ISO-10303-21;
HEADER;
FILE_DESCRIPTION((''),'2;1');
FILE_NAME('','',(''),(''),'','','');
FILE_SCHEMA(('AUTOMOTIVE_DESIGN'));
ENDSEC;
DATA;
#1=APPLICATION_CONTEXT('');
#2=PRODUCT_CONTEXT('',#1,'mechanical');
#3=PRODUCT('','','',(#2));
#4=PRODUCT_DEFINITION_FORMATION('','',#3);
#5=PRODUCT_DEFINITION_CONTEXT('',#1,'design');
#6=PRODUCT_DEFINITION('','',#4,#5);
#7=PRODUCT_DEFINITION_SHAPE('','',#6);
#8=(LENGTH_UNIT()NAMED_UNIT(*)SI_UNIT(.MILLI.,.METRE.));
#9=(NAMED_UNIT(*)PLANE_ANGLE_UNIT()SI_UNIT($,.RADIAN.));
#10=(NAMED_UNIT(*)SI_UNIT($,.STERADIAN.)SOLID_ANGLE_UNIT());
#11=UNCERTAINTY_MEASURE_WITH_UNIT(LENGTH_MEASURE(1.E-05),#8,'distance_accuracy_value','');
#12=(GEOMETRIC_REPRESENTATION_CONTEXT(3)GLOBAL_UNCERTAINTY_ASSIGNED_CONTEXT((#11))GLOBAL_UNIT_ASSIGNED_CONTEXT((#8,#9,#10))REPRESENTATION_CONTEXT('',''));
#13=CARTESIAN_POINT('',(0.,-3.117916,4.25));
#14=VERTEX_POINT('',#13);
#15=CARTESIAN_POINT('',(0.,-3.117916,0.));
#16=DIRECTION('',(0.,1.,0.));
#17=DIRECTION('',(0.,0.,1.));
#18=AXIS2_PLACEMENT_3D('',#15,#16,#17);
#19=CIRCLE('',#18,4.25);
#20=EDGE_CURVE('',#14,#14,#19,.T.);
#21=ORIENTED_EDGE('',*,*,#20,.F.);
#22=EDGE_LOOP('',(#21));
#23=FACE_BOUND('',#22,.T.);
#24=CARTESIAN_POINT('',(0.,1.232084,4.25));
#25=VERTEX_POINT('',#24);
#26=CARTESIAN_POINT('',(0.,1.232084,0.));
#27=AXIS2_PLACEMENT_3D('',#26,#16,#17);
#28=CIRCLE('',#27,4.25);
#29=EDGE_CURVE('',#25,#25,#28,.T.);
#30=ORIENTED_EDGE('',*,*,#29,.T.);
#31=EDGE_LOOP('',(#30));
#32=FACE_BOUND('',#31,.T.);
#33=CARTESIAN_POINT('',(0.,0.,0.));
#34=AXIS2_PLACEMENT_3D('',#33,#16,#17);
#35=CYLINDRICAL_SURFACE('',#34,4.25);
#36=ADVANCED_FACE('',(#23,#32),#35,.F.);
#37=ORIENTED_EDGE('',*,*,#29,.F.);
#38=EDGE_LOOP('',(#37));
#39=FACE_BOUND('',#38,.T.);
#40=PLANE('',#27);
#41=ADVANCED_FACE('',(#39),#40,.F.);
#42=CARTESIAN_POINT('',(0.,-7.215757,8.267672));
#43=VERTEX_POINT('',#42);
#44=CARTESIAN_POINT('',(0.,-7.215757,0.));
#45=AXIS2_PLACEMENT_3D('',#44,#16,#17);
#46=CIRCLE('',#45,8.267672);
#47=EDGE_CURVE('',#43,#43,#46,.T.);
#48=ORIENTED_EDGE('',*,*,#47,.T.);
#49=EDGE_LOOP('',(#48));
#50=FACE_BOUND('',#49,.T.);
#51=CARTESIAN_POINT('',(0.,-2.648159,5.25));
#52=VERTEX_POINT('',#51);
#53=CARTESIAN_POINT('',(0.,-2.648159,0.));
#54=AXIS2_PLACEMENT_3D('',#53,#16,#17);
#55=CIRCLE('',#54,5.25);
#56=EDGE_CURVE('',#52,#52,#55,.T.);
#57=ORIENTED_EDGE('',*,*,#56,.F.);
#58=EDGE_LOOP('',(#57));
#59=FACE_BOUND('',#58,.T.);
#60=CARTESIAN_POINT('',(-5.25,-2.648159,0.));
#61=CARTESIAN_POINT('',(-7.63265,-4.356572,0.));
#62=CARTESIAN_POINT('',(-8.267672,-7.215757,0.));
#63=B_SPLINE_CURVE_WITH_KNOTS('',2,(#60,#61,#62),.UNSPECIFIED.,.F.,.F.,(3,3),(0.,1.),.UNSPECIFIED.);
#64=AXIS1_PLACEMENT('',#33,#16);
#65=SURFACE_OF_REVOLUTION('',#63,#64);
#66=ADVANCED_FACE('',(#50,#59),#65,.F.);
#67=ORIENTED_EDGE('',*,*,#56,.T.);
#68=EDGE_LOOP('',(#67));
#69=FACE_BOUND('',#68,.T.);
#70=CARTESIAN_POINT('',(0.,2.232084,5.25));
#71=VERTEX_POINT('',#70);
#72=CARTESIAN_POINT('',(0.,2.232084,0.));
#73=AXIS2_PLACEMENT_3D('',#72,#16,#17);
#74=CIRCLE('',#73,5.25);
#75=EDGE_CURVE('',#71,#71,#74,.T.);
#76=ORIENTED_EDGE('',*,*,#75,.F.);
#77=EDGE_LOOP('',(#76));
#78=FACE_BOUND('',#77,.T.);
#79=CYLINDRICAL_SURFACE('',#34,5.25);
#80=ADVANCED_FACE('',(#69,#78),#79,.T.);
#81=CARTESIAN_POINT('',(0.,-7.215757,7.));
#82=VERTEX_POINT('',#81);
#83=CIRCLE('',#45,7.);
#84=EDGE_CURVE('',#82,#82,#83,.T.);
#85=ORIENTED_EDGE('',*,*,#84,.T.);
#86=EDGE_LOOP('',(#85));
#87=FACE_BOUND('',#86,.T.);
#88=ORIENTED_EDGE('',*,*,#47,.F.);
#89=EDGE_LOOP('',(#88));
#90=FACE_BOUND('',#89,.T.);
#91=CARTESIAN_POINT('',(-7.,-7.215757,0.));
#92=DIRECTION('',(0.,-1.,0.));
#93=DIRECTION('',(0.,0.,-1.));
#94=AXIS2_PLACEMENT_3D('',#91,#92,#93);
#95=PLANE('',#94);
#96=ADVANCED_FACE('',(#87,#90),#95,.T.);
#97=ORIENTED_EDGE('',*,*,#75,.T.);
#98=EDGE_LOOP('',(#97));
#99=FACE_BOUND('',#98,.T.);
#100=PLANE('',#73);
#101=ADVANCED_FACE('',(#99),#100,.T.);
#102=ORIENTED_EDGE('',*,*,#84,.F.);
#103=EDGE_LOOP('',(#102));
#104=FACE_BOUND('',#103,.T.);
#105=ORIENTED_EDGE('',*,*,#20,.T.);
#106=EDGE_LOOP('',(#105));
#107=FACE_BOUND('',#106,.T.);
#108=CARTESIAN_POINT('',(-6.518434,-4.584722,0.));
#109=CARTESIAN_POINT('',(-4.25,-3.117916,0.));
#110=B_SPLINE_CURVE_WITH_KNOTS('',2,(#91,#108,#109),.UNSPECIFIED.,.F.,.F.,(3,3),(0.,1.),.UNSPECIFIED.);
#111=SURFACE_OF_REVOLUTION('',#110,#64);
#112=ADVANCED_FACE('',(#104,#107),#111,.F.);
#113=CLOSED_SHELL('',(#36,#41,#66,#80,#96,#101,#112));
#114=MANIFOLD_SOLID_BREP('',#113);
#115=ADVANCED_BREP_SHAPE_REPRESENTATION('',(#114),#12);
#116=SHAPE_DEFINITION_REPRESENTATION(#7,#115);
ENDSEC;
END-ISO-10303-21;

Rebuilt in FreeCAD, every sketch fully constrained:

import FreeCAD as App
import Part
import Sketcher
from FreeCAD import Vector
Q = App.Units.Quantity

doc = App.newDocument("Part")
body = doc.addObject("PartDesign::Body", "Body")

sketch1 = body.newObject("Sketcher::SketchObject", "Sketch")
sketch1.AttachmentSupport = (doc.getObject("XY_Plane"), [""])
sketch1.MapMode = "FlatFace"
sketch1.addGeometry(Part.LineSegment(Vector(-4.25, 1.232084, 0), Vector(-5.25, 1.232084, 0)), False)
sketch1.addGeometry(Part.LineSegment(Vector(-5.25, 1.232084, 0), Vector(-5.25, -2.648159, 0)), False)
sketch1.addGeometry(Part.BSplineCurve([Vector(-8.267672, -7.215757, 0), Vector(-7.63265, -4.356572, 0), Vector(-5.25, -2.648159, 0)], [3, 3], [0, 1], False, 2, [1, 1, 1], False), False)
sketch1.addGeometry(Part.LineSegment(Vector(-8.267672, -7.215757, 0), Vector(-7, -7.215757, 0)), False)
sketch1.addGeometry(Part.BSplineCurve([Vector(-7, -7.215757, 0), Vector(-6.518434, -4.584722, 0), Vector(-4.25, -3.117916, 0)], [3, 3], [0, 1], False, 2, [1, 1, 1], False), False)
sketch1.addGeometry(Part.LineSegment(Vector(-4.25, -3.117916, 0), Vector(-4.25, 1.232084, 0)), False)
sketch1.addConstraint(Sketcher.Constraint("Block", 2))
sketch1.addConstraint(Sketcher.Constraint("Block", 4))
sketch1.addConstraint(Sketcher.Constraint("Coincident", 0, 2, 1, 1))
sketch1.addConstraint(Sketcher.Constraint("Coincident", 1, 2, 2, 2))
sketch1.addConstraint(Sketcher.Constraint("Coincident", 2, 1, 3, 1))
sketch1.addConstraint(Sketcher.Constraint("Coincident", 3, 2, 4, 1))
sketch1.addConstraint(Sketcher.Constraint("Coincident", 4, 2, 5, 1))
sketch1.addConstraint(Sketcher.Constraint("Coincident", 5, 2, 0, 1))
sketch1.addConstraint(Sketcher.Constraint("Horizontal", 0))
sketch1.addConstraint(Sketcher.Constraint("Vertical", 1))
sketch1.addConstraint(Sketcher.Constraint("Vertical", 5))
sketch1.addConstraint(Sketcher.Constraint("DistanceY", 5, 1, 5, 2, Q("4.35 mm")))
revolution = body.newObject("PartDesign::Revolution", "Revolution")
revolution.Profile = sketch1
revolution.ReferenceAxis = (sketch1, ["V_Axis"])
revolution.Angle = 360

sketch2 = body.newObject("Sketcher::SketchObject", "Sketch001")
sketch2.AttachmentSupport = (doc.getObject("XZ_Plane"), [""])
sketch2.MapMode = "FlatFace"
sketch2.AttachmentOffset = App.Placement(Vector(0, 0, -2.232084), App.Rotation())
sketch2.addGeometry(Part.Circle(Vector(0, 0, 0), Vector(0, 0, 1), 5), False)
sketch2.addConstraint(Sketcher.Constraint("Coincident", 0, 3, -1, 1))
sketch2.addConstraint(Sketcher.Constraint("Diameter", 0, Q("10.5 mm")))
pad1 = body.newObject("PartDesign::Pad", "Pad")
pad1.Profile = sketch2
pad1.Length = 1

doc.recompute()
